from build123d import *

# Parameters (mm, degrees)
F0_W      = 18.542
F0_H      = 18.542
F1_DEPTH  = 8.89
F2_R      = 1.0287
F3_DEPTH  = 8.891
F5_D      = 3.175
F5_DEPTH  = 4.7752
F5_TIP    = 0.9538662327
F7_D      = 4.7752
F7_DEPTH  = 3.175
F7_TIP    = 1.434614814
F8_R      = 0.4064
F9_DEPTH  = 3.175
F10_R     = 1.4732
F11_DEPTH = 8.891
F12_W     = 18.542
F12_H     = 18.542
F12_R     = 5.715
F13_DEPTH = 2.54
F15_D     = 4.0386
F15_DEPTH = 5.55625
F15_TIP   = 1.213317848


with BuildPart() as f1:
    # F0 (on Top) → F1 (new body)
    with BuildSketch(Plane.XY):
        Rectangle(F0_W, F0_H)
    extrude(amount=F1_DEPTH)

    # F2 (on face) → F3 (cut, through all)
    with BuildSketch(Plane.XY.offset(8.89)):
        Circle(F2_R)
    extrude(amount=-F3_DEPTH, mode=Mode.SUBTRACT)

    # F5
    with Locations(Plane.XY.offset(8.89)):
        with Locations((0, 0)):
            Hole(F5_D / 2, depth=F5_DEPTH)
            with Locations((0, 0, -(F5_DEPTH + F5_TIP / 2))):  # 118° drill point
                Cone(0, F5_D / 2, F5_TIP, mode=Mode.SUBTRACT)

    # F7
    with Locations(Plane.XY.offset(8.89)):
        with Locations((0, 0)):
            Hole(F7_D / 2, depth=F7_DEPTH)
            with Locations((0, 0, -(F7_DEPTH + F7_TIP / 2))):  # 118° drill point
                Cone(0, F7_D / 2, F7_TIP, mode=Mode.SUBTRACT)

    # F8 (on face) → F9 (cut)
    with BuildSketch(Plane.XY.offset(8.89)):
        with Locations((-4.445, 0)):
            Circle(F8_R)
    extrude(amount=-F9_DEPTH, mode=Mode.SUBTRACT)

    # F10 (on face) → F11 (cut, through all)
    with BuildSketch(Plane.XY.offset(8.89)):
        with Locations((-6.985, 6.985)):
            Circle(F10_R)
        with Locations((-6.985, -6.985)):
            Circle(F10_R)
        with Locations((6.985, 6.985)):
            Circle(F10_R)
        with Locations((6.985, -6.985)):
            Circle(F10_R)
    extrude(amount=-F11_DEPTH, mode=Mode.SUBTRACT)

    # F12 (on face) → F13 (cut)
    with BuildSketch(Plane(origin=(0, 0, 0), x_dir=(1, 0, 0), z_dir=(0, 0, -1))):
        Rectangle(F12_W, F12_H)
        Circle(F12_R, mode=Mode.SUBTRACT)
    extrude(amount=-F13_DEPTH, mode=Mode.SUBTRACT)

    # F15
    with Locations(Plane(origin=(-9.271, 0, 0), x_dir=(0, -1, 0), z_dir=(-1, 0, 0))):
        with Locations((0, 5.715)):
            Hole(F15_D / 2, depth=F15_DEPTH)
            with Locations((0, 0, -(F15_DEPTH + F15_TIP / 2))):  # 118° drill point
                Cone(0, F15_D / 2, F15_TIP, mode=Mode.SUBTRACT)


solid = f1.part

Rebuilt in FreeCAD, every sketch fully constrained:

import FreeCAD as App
import Part
import Sketcher
from FreeCAD import Vector
Q = App.Units.Quantity


def add_polygon(sketch, points):
    """Adds a closed chain of lines whose ends are joined by coincident constraints."""
    first, n = sketch.GeometryCount, len(points)
    for a, b in zip(points, points[1:] + points[:1]):
        sketch.addGeometry(Part.LineSegment(App.Vector(*a, 0), App.Vector(*b, 0)), False)
    for i in range(n):
        sketch.addConstraint(Sketcher.Constraint("Coincident", first + i, 2, first + (i + 1) % n, 1))

doc = App.newDocument("Part")
body = doc.addObject("PartDesign::Body", "Body")

# Sketch on XY plane
sketch1 = body.newObject("Sketcher::SketchObject", "Sketch")
sketch1.AttachmentSupport = (doc.getObject("XY_Plane"), [""])
sketch1.MapMode = "FlatFace"
add_polygon(sketch1, [(-9.271, 9.271), (-9.271, -9.271), (9.271, -9.271), (9.271, 9.271)])  # lines 0-3
sketch1.addConstraint(Sketcher.Constraint("Vertical", 0))
sketch1.addConstraint(Sketcher.Constraint("Horizontal", 1))
sketch1.addConstraint(Sketcher.Constraint("Vertical", 2))
sketch1.addConstraint(Sketcher.Constraint("Horizontal", 3))
sketch1.addConstraint(Sketcher.Constraint("Symmetric", 0, 2, 2, 2, -1, 1))
sketch1.addConstraint(Sketcher.Constraint("Equal", 3, 0))
sketch1.addConstraint(Sketcher.Constraint("DistanceX", 1, 1, 1, 2, Q("0.73 in")))
pad1 = body.newObject("PartDesign::Pad", "Pad")
pad1.Profile = sketch1
pad1.Length = Q("0.35 in")

# Sketch on XY plane
sketch2 = body.newObject("Sketcher::SketchObject", "Sketch001")
sketch2.AttachmentSupport = (doc.getObject("XY_Plane"), [""])
sketch2.MapMode = "FlatFace"
sketch2.AttachmentOffset = App.Placement(Vector(0, 0, 0.35 * 25.4), App.Rotation())
sketch2.addGeometry(Part.Circle(Vector(0, 0, 0), Vector(0, 0, 1), 1.0287), False)
sketch2.addConstraint(Sketcher.Constraint("Coincident", 0, 3, -1, 1))
sketch2.addConstraint(Sketcher.Constraint("Diameter", 0, Q("0.081 in")))
pocket1 = body.newObject("PartDesign::Pocket", "Pocket")
pocket1.Profile = sketch2
pocket1.Type = "ThroughAll"

# Sketch on XY plane
sketch3 = body.newObject("Sketcher::SketchObject", "Sketch002")
sketch3.AttachmentSupport = (doc.getObject("XY_Plane"), [""])
sketch3.MapMode = "FlatFace"
sketch3.AttachmentOffset = App.Placement(Vector(0, 0, 0.35 * 25.4), App.Rotation())
sketch3.addGeometry(Part.Circle(Vector(0, 0, 0), Vector(0, 0, 1), 1.5875), False)
sketch3.addConstraint(Sketcher.Constraint("Coincident", 0, 3, -1, 1))
sketch3.addConstraint(Sketcher.Constraint("Diameter", 0, Q("0.125 in")))
doc.recompute()
hole = body.newObject("PartDesign::Hole", "Hole")
hole.Profile = sketch3
hole.ThreadType = "None"
hole.Diameter = Q("0.125 in")
hole.DepthType = "Dimension"
hole.Depth = Q("0.188 in")
hole.DrillPoint = "Angled"
hole.DrillPointAngle = 118

# Sketch on XY plane
sketch4 = body.newObject("Sketcher::SketchObject", "Sketch003")
sketch4.AttachmentSupport = (doc.getObject("XY_Plane"), [""])
sketch4.MapMode = "FlatFace"
sketch4.AttachmentOffset = App.Placement(Vector(0, 0, 0.35 * 25.4), App.Rotation())
sketch4.addGeometry(Part.Circle(Vector(0, 0, 0), Vector(0, 0, 1), 2.3876), False)
sketch4.addConstraint(Sketcher.Constraint("Coincident", 0, 3, -1, 1))
sketch4.addConstraint(Sketcher.Constraint("Diameter", 0, Q("0.188 in")))
doc.recompute()
hole2 = body.newObject("PartDesign::Hole", "Hole001")
hole2.Profile = sketch4
hole2.ThreadType = "None"
hole2.Diameter = Q("0.188 in")
hole2.DepthType = "Dimension"
hole2.Depth = Q("0.125 in")
hole2.DrillPoint = "Angled"
hole2.DrillPointAngle = 118

# Sketch on XY plane
sketch5 = body.newObject("Sketcher::SketchObject", "Sketch004")
sketch5.AttachmentSupport = (doc.getObject("XY_Plane"), [""])
sketch5.MapMode = "FlatFace"
sketch5.AttachmentOffset = App.Placement(Vector(0, 0, 0.35 * 25.4), App.Rotation())
sketch5.addGeometry(Part.Circle(Vector(-4.445, 0, 0), Vector(0, 0, 1), 0.4064), False)
sketch5.addConstraint(Sketcher.Constraint("PointOnObject", 0, 3, -1))
sketch5.addConstraint(Sketcher.Constraint("Diameter", 0, Q("0.032 in")))
sketch5.addConstraint(Sketcher.Constraint("DistanceX", 0, 3, -1, 1, Q("0.175 in")))
pocket2 = body.newObject("PartDesign::Pocket", "Pocket001")
pocket2.Profile = sketch5
pocket2.Length = Q("0.125 in")

# Sketch on XY plane
sketch6 = body.newObject("Sketcher::SketchObject", "Sketch005")
sketch6.AttachmentSupport = (doc.getObject("XY_Plane"), [""])
sketch6.MapMode = "FlatFace"
sketch6.AttachmentOffset = App.Placement(Vector(0, 0, 0.35 * 25.4), App.Rotation())
sketch6.addGeometry(Part.Circle(Vector(-6.985, 6.985, 0), Vector(0, 0, 1), 1.4732), False)
sketch6.addGeometry(Part.Circle(Vector(-6.985, -6.985, 0), Vector(0, 0, 1), 1.4732), False)
sketch6.addGeometry(Part.Circle(Vector(6.985, 6.985, 0), Vector(0, 0, 1), 1.4732), False)
sketch6.addGeometry(Part.Circle(Vector(6.985, -6.985, 0), Vector(0, 0, 1), 1.4732), False)
sketch6.addConstraint(Sketcher.Constraint("Equal", 0, 1))
sketch6.addConstraint(Sketcher.Constraint("Equal", 1, 2))
sketch6.addConstraint(Sketcher.Constraint("Equal", 2, 3))
sketch6.addConstraint(Sketcher.Constraint("Symmetric", 1, 3, 2, 3, -1, 1))
sketch6.addConstraint(Sketcher.Constraint("Symmetric", 0, 3, 3, 3, -1, 1))
sketch6.addConstraint(Sketcher.Constraint("Symmetric", 0, 3, 2, 3, -2))
sketch6.addConstraint(Sketcher.Constraint("Diameter", 0, Q("0.116 in")))
sketch6.addConstraint(Sketcher.Constraint("DistanceY", 1, 3, 0, 3, Q("0.55 in")))
sketch6.addConstraint(Sketcher.Constraint("DistanceX", 0, 3, 2, 3, Q("0.55 in")))
pocket3 = body.newObject("PartDesign::Pocket", "Pocket002")
pocket3.Profile = sketch6
pocket3.Type = "ThroughAll"

# Sketch on XY plane
sketch7 = body.newObject("Sketcher::SketchObject", "Sketch006")
sketch7.AttachmentSupport = (doc.getObject("XY_Plane"), [""])
sketch7.MapMode = "FlatFace"
add_polygon(sketch7, [(-9.271, -9.271), (-9.271, 9.271), (9.271, 9.271), (9.271, -9.271)])  # lines 0-3
sketch7.addGeometry(Part.Circle(Vector(0, 0, 0), Vector(0, 0, 1), 5.715), False)  # 4
sketch7.addConstraint(Sketcher.Constraint("Vertical", 0))
sketch7.addConstraint(Sketcher.Constraint("Horizontal", 1))
sketch7.addConstraint(Sketcher.Constraint("Vertical", 2))
sketch7.addConstraint(Sketcher.Constraint("Horizontal", 3))
sketch7.addConstraint(Sketcher.Constraint("Coincident", 4, 3, -1, 1))
sketch7.addConstraint(Sketcher.Constraint("Symmetric", 0, 2, 2, 2, -1, 1))
sketch7.addConstraint(Sketcher.Constraint("Equal", 3, 0))
sketch7.addConstraint(Sketcher.Constraint("Diameter", 4, Q("0.45 in")))
sketch7.addConstraint(Sketcher.Constraint("DistanceX", 1, 1, 1, 2, Q("0.73 in")))
pocket4 = body.newObject("PartDesign::Pocket", "Pocket003")
pocket4.Profile = sketch7
pocket4.Length = Q("0.1 in")
pocket4.Reversed = True

# Sketch on YZ plane
sketch8 = body.newObject("Sketcher::SketchObject", "Sketch007")
sketch8.AttachmentSupport = (doc.getObject("YZ_Plane"), [""])
sketch8.MapMode = "FlatFace"
sketch8.AttachmentOffset = App.Placement(Vector(0, 0, -0.365 * 25.4), App.Rotation())
sketch8.addGeometry(Part.Circle(Vector(0, 5.715, 0), Vector(0, 0, 1), 2.0193), False)
sketch8.addConstraint(Sketcher.Constraint("PointOnObject", 0, 3, -2))
sketch8.addConstraint(Sketcher.Constraint("Diameter", 0, Q("0.159 in")))
sketch8.addConstraint(Sketcher.Constraint("DistanceY", -1, 1, 0, 3, Q("0.225 in")))
doc.recompute()
hole3 = body.newObject("PartDesign::Hole", "Hole002")
hole3.Profile = sketch8
hole3.ThreadType = "None"
hole3.Diameter = Q("0.159 in")
hole3.DepthType = "Dimension"
hole3.Depth = Q("0.21875 in")
hole3.DrillPoint = "Angled"
hole3.DrillPointAngle = 118
hole3.Reversed = True

doc.recompute()
